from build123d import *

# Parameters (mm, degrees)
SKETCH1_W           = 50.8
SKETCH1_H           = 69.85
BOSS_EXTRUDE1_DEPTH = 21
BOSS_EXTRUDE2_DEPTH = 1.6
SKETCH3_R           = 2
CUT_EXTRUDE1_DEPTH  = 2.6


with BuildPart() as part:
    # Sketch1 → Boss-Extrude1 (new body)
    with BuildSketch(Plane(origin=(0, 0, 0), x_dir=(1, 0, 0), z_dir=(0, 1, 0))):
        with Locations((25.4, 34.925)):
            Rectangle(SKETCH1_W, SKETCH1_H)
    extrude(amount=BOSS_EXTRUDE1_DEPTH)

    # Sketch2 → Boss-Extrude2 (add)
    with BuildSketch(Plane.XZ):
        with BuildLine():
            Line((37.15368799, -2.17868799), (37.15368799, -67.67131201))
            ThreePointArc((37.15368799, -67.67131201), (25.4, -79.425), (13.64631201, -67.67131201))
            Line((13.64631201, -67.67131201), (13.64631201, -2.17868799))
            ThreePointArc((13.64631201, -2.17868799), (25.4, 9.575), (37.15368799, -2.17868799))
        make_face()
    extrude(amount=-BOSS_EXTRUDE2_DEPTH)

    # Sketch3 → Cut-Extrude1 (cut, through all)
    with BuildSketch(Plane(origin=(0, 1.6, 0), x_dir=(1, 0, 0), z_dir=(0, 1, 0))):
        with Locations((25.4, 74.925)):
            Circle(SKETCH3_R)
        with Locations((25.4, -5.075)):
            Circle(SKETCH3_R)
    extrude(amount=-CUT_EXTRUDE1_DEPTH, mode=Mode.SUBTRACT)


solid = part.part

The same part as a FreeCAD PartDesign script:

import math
import FreeCAD as App
import Part
import Sketcher
Q = App.Units.Quantity

doc = App.newDocument("Part")
body = doc.addObject("PartDesign::Body", "Body")

# Sketch on XZ plane
sketch1 = body.newObject("Sketcher::SketchObject", "Sketch")
sketch1.AttachmentSupport = (doc.getObject("XZ_Plane"), [""])
sketch1.MapMode = "FlatFace"
sketch1.addGeometry([
    Part.LineSegment(App.Vector(0, -70, 0), App.Vector(0, 0, 0)),
    Part.LineSegment(App.Vector(0, 0, 0), App.Vector(51, 0, 0)),
    Part.LineSegment(App.Vector(51, 0, 0), App.Vector(51, -70, 0)),
    Part.LineSegment(App.Vector(51, -70, 0), App.Vector(0, -70, 0)),
], False)
sketch1.addConstraint([
    Sketcher.Constraint("Coincident", 0, 2, 1, 1),
    Sketcher.Constraint("Coincident", 1, 2, 2, 1),
    Sketcher.Constraint("Coincident", 2, 2, 3, 1),
    Sketcher.Constraint("Coincident", 3, 2, 0, 1),
    Sketcher.Constraint("Vertical", 0),
    Sketcher.Constraint("Horizontal", 1),
    Sketcher.Constraint("Vertical", 2),
    Sketcher.Constraint("Horizontal", 3),
    Sketcher.Constraint("Coincident", 0, 2, -1, 1),
    Sketcher.Constraint("DistanceX", 1, 1, 1, 2, Q("50.8 mm")),
    Sketcher.Constraint("DistanceY", 0, 1, 0, 2, Q("69.85 mm")),
])
pad1 = body.newObject("PartDesign::Pad", "Pad")
pad1.Profile = sketch1
pad1.Length = 21
pad1.Reversed = True

# Sketch on XZ plane
sketch2 = body.newObject("Sketcher::SketchObject", "Sketch001")
sketch2.AttachmentSupport = (doc.getObject("XZ_Plane"), [""])
sketch2.MapMode = "FlatFace"
sketch2.addGeometry([
    Part.LineSegment(App.Vector(37, -68, 0), App.Vector(37, -2, 0)),
    Part.ArcOfCircle(Part.Circle(App.Vector(25, -2, 0), App.Vector(0, 0, 1), 12), math.radians(0), math.radians(180)),
    Part.LineSegment(App.Vector(14, -2, 0), App.Vector(14, -68, 0)),
    Part.ArcOfCircle(Part.Circle(App.Vector(25, -68, 0), App.Vector(0, 0, 1), 12), math.radians(180), math.radians(360)),
], False)
sketch2.addConstraint([
    Sketcher.Constraint("Tangent", 0, 2, 1, 1),
    Sketcher.Constraint("Tangent", 1, 2, 2, 1),
    Sketcher.Constraint("Tangent", 2, 2, 3, 1),
    Sketcher.Constraint("Tangent", 3, 2, 0, 1),
    Sketcher.Constraint("Vertical", 0),
    Sketcher.Constraint("Vertical", 2),
    Sketcher.Constraint("DistanceX", -1, 1, 1, 3, Q("25.4 mm")),
    Sketcher.Constraint("Radius", 1, Q("11.753688 mm")),
    Sketcher.Constraint("DistanceY", 0, 1, 0, 2, Q("65.492624 mm")),
    Sketcher.Constraint("DistanceY", 1, 3, -1, 1, Q("2.178688 mm")),
])
pad2 = body.newObject("PartDesign::Pad", "Pad001")
pad2.Profile = sketch2
pad2.Length = 1.6
pad2.Reversed = True

# Sketch on XZ plane
sketch3 = body.newObject("Sketcher::SketchObject", "Sketch002")
sketch3.AttachmentSupport = (doc.getObject("XZ_Plane"), [""])
sketch3.MapMode = "FlatFace"
sketch3.AttachmentOffset = App.Placement(App.Vector(0, 0, -1.6), App.Rotation())
sketch3.addGeometry([
    Part.Circle(App.Vector(25.4, -74.9, 0), App.Vector(0, 0, 1), 2),
    Part.Circle(App.Vector(25.4, 5.1, 0), App.Vector(0, 0, 1), 2),
], False)
sketch3.addConstraint([
    Sketcher.Constraint("Equal", 0, 1),
    Sketcher.Constraint("Vertical", 0, 3, 1, 3),
    Sketcher.Constraint("Diameter", 0, Q("4 mm")),
    Sketcher.Constraint("DistanceY", 0, 3, 1, 3, Q("80 mm")),
    Sketcher.Constraint("DistanceX", -1, 1, 0, 3, Q("25.4 mm")),
    Sketcher.Constraint("DistanceY", 0, 3, -1, 1, Q("74.925 mm")),
])
pocket1 = body.newObject("PartDesign::Pocket", "Pocket")
pocket1.Profile = sketch3
pocket1.Type = "ThroughAll"
pocket1.Reversed = True

doc.recompute()
